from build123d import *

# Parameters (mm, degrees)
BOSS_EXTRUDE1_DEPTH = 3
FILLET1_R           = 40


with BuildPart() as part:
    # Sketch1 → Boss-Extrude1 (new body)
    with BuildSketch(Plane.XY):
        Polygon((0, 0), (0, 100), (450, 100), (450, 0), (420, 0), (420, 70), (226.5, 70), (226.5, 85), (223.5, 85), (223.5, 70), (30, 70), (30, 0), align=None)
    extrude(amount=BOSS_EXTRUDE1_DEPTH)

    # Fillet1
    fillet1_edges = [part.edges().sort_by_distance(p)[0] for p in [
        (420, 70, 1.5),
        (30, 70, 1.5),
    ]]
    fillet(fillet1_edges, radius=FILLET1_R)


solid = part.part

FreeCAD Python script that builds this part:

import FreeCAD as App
import Part
import Sketcher
from FreeCAD import Vector
Q = App.Units.Quantity


def edges_at(feature, points):
    """Names of the edges that pass closest to the given points."""
    edges = feature.Shape.Edges
    near = lambda p: min(range(len(edges)), key=lambda i: edges[i].distToShape(Part.Vertex(*p))[0])
    return sorted({f"Edge{near(p) + 1}" for p in points})

doc = App.newDocument("Part")
params = doc.addObject("Spreadsheet::Sheet", "Params")
for row, (alias, value) in enumerate([
    ("sketch1_width", "30 mm"),
    ("sketch1_width2", "3 mm"),
    ("sketch1_width3", "450 mm"),
    ("sketch1_height", "100 mm"),
    ("sketch1_height2", "70 mm"),
    ("pad1_length", "3 mm"),
    ("fillet_radius", "40 mm"),
], start=1):
    params.set(f"A{row}", alias)
    params.set(f"B{row}", "=" + value)
    params.setAlias(f"B{row}", alias)

body = doc.addObject("PartDesign::Body", "Body")

# Sketch on XY plane
sketch1 = doc.addObject("Sketcher::SketchObject", "Sketch")
body.addObject(sketch1)
sketch1.AttachmentSupport = (doc.XY_Plane, [""])
sketch1.MapMode = "FlatFace"
sketch1.addGeometry(Part.LineSegment(Vector(0, 100, 0), Vector(0, 0, 0)), False)
sketch1.addGeometry(Part.LineSegment(Vector(0, 0, 0), Vector(30, 0, 0)), False)
sketch1.addGeometry(Part.LineSegment(Vector(30, 0, 0), Vector(30, 70, 0)), False)
sketch1.addGeometry(Part.LineSegment(Vector(30, 70, 0), Vector(223.5, 70, 0)), False)
sketch1.addGeometry(Part.LineSegment(Vector(223.5, 70, 0), Vector(223.5, 85, 0)), False)
sketch1.addGeometry(Part.LineSegment(Vector(223.5, 85, 0), Vector(226.5, 85, 0)), False)
sketch1.addGeometry(Part.LineSegment(Vector(226.5, 85, 0), Vector(226.5, 70, 0)), False)
sketch1.addGeometry(Part.LineSegment(Vector(226.5, 70, 0), Vector(420, 70, 0)), False)
sketch1.addGeometry(Part.LineSegment(Vector(420, 70, 0), Vector(420, 0, 0)), False)
sketch1.addGeometry(Part.LineSegment(Vector(420, 0, 0), Vector(450, 0, 0)), False)
sketch1.addGeometry(Part.LineSegment(Vector(450, 0, 0), Vector(450, 100, 0)), False)
sketch1.addGeometry(Part.LineSegment(Vector(450, 100, 0), Vector(0, 100, 0)), False)
sketch1.addConstraint(Sketcher.Constraint("Coincident", 0, 2, 1, 1))
sketch1.addConstraint(Sketcher.Constraint("Coincident", 1, 2, 2, 1))
sketch1.addConstraint(Sketcher.Constraint("Coincident", 2, 2, 3, 1))
sketch1.addConstraint(Sketcher.Constraint("Coincident", 3, 2, 4, 1))
sketch1.addConstraint(Sketcher.Constraint("Coincident", 4, 2, 5, 1))
sketch1.addConstraint(Sketcher.Constraint("Coincident", 5, 2, 6, 1))
sketch1.addConstraint(Sketcher.Constraint("Coincident", 6, 2, 7, 1))
sketch1.addConstraint(Sketcher.Constraint("Coincident", 7, 2, 8, 1))
sketch1.addConstraint(Sketcher.Constraint("Coincident", 8, 2, 9, 1))
sketch1.addConstraint(Sketcher.Constraint("Coincident", 9, 2, 10, 1))
sketch1.addConstraint(Sketcher.Constraint("Coincident", 10, 2, 11, 1))
sketch1.addConstraint(Sketcher.Constraint("Coincident", 11, 2, 0, 1))
sketch1.addConstraint(Sketcher.Constraint("Vertical", 0))
sketch1.addConstraint(Sketcher.Constraint("Horizontal", 1))
sketch1.addConstraint(Sketcher.Constraint("Vertical", 2))
sketch1.addConstraint(Sketcher.Constraint("Horizontal", 3))
sketch1.addConstraint(Sketcher.Constraint("Vertical", 4))
sketch1.addConstraint(Sketcher.Constraint("Horizontal", 5))
sketch1.addConstraint(Sketcher.Constraint("Vertical", 6))
sketch1.addConstraint(Sketcher.Constraint("Horizontal", 7))
sketch1.addConstraint(Sketcher.Constraint("Vertical", 8))
sketch1.addConstraint(Sketcher.Constraint("Horizontal", 9))
sketch1.addConstraint(Sketcher.Constraint("Vertical", 10))
sketch1.addConstraint(Sketcher.Constraint("Horizontal", 11))
sketch1.addConstraint(Sketcher.Constraint("Coincident", 0, 2, -1, 1))
sketch1.addConstraint(Sketcher.Constraint("PointOnObject", 8, 2, -1))
sketch1.addConstraint(Sketcher.Constraint("Horizontal", 3, 2, 6, 2))
sketch1.addConstraint(Sketcher.Constraint("Equal", 3, 7))
sketch1.addConstraint(Sketcher.Constraint("Equal", 1, 9))
sketch1.addConstraint(Sketcher.Constraint("DistanceX", 1, 1, 1, 2, Q("30 mm")))
sketch1.addConstraint(Sketcher.Constraint("DistanceX", 5, 1, 5, 2, Q("3 mm")))
sketch1.addConstraint(Sketcher.Constraint("DistanceX", 11, 2, 11, 1, Q("450 mm")))
sketch1.addConstraint(Sketcher.Constraint("DistanceY", 0, 2, 0, 1, Q("100 mm")))
sketch1.addConstraint(Sketcher.Constraint("DistanceY", 2, 1, 2, 2, Q("70 mm")))
sketch1.addConstraint(Sketcher.Constraint("DistanceY", 4, 1, 4, 2, Q("15 mm")))
sketch1.setExpression("Constraints[29]", "Params.sketch1_width")
sketch1.setExpression("Constraints[30]", "Params.sketch1_width2")
sketch1.setExpression("Constraints[31]", "Params.sketch1_width3")
sketch1.setExpression("Constraints[32]", "Params.sketch1_height")
sketch1.setExpression("Constraints[33]", "Params.sketch1_height2")
pad1 = doc.addObject("PartDesign::Pad", "Pad")
body.addObject(pad1)
pad1.Profile = sketch1
pad1.setExpression("Length", "Params.pad1_length")
doc.recompute()

fillet = doc.addObject("PartDesign::Fillet", "Fillet")
body.addObject(fillet)
fillet.Base = (pad1, edges_at(pad1, [(420, 70, 1.5), (30, 70, 1.5)]))
fillet.setExpression("Radius", "Params.fillet_radius")

doc.recompute()
